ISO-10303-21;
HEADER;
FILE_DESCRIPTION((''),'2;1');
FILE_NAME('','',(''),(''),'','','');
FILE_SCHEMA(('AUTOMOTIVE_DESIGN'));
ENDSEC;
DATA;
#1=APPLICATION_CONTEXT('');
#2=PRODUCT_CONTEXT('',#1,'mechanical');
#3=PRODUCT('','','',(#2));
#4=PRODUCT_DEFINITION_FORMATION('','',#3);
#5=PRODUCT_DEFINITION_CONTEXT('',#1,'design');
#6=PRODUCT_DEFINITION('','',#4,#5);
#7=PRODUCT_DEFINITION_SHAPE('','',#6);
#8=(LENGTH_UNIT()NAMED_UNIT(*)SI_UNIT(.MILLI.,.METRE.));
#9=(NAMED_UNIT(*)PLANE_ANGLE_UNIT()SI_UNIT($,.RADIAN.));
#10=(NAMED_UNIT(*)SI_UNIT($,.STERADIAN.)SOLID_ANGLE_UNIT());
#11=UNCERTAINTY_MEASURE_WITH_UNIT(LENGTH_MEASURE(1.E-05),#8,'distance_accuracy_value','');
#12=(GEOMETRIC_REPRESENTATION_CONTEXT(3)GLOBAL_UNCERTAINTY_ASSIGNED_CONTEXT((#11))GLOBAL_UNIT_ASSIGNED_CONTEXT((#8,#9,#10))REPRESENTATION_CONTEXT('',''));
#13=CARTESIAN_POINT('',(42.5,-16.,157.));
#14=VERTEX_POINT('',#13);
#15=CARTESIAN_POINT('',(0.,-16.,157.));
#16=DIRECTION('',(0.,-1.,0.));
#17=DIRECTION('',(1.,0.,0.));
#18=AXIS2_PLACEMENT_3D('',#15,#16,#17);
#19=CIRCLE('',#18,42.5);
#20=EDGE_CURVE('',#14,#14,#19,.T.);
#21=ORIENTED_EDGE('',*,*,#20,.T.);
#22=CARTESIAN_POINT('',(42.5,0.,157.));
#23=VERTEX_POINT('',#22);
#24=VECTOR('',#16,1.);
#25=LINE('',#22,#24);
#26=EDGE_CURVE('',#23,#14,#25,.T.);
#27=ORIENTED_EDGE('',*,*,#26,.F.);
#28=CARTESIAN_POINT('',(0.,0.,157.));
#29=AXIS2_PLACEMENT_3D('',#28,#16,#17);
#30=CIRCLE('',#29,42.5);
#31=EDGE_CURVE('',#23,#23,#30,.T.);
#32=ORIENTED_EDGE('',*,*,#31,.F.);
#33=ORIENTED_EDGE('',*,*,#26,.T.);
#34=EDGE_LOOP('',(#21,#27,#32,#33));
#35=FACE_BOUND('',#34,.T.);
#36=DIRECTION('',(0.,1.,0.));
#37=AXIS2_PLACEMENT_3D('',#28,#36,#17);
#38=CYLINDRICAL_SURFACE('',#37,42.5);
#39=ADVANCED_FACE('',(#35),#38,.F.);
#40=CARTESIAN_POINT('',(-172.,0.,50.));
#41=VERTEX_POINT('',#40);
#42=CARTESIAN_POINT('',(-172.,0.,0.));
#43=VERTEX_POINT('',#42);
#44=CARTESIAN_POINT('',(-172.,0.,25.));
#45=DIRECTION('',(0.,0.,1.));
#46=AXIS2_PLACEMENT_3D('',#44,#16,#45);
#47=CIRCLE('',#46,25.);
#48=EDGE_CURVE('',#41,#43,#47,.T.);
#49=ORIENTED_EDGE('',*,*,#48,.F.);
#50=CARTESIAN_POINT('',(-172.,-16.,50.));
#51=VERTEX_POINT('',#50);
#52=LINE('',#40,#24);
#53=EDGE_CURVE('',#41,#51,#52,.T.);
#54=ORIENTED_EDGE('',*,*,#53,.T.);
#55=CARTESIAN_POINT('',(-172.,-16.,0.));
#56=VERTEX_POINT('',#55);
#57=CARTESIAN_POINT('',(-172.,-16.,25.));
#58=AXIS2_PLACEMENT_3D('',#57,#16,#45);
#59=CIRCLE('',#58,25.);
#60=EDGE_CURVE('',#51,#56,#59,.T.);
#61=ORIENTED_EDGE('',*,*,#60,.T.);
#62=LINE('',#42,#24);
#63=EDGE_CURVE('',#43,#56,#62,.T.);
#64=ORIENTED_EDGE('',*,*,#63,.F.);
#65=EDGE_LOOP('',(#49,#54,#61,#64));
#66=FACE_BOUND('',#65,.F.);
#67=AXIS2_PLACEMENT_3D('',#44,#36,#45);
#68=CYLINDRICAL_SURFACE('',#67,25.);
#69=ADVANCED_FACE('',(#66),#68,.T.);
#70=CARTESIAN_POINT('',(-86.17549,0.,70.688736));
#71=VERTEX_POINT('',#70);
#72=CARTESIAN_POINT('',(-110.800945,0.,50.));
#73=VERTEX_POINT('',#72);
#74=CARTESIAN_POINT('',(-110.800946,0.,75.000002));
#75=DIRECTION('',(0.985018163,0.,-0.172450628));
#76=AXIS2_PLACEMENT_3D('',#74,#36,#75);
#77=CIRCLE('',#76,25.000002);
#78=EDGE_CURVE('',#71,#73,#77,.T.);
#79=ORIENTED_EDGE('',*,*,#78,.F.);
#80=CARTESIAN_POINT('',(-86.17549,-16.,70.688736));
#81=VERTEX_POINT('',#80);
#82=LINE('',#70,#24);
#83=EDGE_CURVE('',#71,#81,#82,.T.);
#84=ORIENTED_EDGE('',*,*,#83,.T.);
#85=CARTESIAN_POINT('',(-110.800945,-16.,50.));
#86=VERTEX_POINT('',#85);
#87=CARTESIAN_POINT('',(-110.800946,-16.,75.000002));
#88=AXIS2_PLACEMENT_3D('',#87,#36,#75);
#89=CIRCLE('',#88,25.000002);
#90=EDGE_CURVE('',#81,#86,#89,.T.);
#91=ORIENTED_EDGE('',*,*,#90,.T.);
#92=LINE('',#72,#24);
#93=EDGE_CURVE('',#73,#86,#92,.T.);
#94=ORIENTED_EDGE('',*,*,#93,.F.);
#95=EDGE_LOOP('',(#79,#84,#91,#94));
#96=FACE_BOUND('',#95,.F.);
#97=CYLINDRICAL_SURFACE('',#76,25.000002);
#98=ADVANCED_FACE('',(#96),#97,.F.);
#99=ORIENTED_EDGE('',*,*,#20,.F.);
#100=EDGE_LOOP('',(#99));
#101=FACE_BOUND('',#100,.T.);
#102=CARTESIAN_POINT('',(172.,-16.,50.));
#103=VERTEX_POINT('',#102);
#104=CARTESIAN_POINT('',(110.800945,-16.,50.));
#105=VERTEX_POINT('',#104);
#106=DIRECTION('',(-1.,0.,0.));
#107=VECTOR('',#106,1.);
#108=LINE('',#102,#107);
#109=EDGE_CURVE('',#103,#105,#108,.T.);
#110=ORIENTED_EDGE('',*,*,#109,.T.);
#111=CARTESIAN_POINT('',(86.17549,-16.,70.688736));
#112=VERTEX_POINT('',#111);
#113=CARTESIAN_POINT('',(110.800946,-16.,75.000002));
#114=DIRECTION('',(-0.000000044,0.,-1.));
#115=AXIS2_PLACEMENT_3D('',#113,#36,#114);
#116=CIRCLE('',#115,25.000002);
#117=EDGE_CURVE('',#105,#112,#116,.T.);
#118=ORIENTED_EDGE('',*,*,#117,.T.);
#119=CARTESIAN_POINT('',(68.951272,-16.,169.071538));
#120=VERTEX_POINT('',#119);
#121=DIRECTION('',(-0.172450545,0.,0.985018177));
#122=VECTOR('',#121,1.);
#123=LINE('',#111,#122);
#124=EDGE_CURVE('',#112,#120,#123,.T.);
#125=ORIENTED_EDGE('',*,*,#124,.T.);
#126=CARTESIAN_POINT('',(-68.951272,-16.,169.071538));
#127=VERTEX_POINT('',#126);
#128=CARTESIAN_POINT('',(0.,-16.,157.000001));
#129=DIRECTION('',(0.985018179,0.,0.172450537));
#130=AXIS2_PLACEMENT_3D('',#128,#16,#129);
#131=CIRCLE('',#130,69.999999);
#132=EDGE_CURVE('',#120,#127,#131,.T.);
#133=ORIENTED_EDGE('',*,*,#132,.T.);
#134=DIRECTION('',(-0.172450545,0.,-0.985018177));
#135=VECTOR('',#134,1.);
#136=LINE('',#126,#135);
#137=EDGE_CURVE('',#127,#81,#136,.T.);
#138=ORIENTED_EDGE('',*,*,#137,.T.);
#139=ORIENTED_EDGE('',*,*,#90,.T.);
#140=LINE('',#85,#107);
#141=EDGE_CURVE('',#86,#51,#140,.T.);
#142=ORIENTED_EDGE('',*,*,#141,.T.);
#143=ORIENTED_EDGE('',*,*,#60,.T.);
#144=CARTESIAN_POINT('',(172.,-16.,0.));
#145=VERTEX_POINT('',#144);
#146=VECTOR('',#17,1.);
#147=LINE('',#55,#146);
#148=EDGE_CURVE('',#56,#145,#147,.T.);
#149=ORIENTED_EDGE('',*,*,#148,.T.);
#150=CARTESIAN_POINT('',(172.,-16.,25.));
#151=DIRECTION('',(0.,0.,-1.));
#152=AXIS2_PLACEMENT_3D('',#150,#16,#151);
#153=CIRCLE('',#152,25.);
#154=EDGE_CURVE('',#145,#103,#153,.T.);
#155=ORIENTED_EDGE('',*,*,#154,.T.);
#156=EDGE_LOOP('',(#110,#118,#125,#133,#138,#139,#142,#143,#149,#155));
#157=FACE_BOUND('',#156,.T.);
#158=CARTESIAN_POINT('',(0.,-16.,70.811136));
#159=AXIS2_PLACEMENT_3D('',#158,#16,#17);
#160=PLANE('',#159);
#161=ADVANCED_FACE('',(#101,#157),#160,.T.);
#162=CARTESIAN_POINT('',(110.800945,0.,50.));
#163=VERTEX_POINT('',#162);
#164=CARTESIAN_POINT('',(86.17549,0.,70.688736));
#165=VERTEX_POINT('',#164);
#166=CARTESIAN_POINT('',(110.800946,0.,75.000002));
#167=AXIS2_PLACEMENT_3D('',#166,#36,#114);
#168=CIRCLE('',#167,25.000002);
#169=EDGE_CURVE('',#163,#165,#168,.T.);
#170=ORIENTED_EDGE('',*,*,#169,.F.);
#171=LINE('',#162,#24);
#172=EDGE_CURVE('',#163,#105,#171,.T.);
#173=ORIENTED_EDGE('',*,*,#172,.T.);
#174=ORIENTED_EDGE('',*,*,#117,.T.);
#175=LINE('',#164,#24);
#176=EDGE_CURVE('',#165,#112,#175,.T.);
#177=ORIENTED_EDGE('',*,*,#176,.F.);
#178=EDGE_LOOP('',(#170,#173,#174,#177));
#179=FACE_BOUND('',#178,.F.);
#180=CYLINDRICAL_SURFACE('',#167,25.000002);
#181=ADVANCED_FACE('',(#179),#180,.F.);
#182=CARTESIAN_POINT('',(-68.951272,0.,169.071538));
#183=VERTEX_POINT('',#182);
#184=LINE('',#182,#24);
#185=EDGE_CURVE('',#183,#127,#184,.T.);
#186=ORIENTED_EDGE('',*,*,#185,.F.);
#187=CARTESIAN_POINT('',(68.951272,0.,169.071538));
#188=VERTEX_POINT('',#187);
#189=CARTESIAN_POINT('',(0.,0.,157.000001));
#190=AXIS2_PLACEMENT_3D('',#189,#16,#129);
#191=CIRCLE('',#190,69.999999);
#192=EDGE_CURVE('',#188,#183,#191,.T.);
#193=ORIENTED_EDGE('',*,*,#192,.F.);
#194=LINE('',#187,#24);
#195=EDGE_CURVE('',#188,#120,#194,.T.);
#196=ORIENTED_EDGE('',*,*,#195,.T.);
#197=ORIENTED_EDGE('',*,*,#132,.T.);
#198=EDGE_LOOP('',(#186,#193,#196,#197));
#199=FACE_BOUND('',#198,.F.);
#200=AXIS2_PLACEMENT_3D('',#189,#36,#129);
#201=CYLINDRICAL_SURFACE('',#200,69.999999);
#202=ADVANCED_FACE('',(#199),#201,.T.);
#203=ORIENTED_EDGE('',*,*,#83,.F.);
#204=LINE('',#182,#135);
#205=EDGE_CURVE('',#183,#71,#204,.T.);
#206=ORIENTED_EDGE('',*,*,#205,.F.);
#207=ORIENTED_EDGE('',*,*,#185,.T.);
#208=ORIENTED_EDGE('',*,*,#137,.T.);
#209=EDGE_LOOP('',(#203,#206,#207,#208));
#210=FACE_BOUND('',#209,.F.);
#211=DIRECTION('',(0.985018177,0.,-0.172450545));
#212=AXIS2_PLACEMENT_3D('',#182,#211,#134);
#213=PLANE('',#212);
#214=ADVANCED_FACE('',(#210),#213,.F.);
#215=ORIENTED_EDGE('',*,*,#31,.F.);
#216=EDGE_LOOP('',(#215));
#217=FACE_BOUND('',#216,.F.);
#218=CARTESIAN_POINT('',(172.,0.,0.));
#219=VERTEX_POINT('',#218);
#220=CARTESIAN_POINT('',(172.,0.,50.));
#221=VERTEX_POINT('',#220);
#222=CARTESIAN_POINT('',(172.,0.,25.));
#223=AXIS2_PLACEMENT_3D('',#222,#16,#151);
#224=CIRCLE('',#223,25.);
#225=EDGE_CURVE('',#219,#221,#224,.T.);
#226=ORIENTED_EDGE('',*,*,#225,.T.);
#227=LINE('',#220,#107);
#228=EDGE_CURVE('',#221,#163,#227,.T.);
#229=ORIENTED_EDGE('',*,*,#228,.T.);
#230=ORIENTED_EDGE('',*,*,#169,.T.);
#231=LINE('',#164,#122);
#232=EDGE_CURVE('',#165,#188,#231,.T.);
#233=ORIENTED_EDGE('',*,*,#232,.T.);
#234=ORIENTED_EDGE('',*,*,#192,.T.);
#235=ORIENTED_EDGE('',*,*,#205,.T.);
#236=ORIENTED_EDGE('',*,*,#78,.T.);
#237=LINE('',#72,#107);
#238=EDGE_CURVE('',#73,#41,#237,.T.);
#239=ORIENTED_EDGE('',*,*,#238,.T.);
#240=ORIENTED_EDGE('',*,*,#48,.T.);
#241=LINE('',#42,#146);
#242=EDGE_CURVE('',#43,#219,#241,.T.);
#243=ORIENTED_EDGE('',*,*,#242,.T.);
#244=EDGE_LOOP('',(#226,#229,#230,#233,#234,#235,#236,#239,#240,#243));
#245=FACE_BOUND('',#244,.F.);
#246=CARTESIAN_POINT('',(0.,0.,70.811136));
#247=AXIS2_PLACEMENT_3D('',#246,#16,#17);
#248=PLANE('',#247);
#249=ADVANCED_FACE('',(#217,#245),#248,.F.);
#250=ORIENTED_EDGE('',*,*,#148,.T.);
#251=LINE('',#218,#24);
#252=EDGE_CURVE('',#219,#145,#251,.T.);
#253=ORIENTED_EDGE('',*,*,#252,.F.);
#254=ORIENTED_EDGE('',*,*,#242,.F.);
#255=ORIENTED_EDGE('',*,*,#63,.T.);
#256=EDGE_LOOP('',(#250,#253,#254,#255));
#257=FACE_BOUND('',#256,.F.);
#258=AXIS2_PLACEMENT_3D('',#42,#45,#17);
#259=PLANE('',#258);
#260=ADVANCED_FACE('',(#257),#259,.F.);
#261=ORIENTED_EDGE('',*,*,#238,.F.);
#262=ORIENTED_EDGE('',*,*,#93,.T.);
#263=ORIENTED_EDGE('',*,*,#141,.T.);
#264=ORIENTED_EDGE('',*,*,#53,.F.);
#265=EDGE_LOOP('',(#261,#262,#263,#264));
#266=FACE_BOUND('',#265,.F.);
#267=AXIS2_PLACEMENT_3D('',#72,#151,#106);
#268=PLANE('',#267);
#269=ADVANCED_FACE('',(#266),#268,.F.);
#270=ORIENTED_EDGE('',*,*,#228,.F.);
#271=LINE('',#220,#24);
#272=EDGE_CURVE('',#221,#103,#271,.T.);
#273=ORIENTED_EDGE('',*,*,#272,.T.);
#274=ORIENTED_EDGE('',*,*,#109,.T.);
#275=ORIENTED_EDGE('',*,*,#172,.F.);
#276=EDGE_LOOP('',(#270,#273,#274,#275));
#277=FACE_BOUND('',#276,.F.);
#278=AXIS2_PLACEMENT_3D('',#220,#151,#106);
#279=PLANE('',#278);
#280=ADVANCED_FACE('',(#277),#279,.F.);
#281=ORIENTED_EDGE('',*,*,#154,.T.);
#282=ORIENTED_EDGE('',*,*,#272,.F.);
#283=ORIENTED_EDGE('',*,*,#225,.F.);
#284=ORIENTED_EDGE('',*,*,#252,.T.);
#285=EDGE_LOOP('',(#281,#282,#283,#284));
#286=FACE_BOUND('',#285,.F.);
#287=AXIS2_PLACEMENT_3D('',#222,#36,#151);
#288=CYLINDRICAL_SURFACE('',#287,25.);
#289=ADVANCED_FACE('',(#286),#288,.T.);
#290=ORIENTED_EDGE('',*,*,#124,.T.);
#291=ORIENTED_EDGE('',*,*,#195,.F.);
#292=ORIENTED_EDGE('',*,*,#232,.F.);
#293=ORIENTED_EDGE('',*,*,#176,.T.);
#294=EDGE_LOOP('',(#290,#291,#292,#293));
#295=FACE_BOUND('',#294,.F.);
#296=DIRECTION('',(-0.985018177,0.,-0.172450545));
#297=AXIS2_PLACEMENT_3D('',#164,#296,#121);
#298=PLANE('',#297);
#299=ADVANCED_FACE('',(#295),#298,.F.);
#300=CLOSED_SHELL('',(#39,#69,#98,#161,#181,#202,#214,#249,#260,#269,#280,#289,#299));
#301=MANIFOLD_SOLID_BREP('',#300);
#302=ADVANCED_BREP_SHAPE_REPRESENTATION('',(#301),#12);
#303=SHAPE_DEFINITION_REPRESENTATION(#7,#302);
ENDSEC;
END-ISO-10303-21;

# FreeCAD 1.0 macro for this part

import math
import FreeCAD as App
import Part
import Sketcher
from FreeCAD import Vector

doc = App.newDocument("Part")
body = doc.addObject("PartDesign::Body", "Body")

# Sketch on XZ plane
sketch1 = body.newObject("Sketcher::SketchObject", "Sketch")
sketch1.AttachmentSupport = (doc.getObject("XZ_Plane"), [""])
sketch1.MapMode = "FlatFace"
sketch1.addGeometry([
    Part.ArcOfCircle(Part.Circle(Vector(-172, 25, 0), Vector(0, 0, 1), 25), math.radians(90), math.radians(270)),  # 0
    Part.LineSegment(Vector(-172, 0, 0), Vector(172, 0, 0)),  # 1
    Part.ArcOfCircle(Part.Circle(Vector(172, 25, 0), Vector(0, 0, 1), 25), math.radians(-90), math.radians(90)),  # 2
    Part.LineSegment(Vector(172, 50, 0), Vector(111, 50, 0)),  # 3
    Part.ArcOfCircle(Part.Circle(Vector(111, 75, 0), Vector(0, 0, 1), 25), math.radians(-170), math.radians(-90)),  # 4
    Part.LineSegment(Vector(86, 71, 0), Vector(69, 169, 0)),  # 5
    Part.ArcOfCircle(Part.Circle(Vector(0, 157, 0), Vector(0, 0, 1), 70), math.radians(10), math.radians(170)),  # 6
    Part.LineSegment(Vector(-69, 169, 0), Vector(-86, 71, 0)),  # 7
    Part.ArcOfCircle(Part.Circle(Vector(-111, 75, 0), Vector(0, 0, 1), 25), math.radians(-90), math.radians(-10)),  # 8
    Part.LineSegment(Vector(-111, 50, 0), Vector(-172, 50, 0)),  # 9
    Part.Circle(Vector(0, 157, 0), Vector(0, 0, 1), 42),  # 10
], False)
sketch1.addConstraint([
    Sketcher.Constraint("Tangent", 0, 2, 1, 1),
    Sketcher.Constraint("Tangent", 1, 2, 2, 1),
    Sketcher.Constraint("Tangent", 2, 2, 3, 1),
    Sketcher.Constraint("Tangent", 3, 2, 4, 2),
    Sketcher.Constraint("Tangent", 4, 1, 5, 1),
    Sketcher.Constraint("Tangent", 5, 2, 6, 1),
    Sketcher.Constraint("Tangent", 6, 2, 7, 1),
    Sketcher.Constraint("Tangent", 7, 2, 8, 2),
    Sketcher.Constraint("Tangent", 8, 1, 9, 1),
    Sketcher.Constraint("Tangent", 9, 2, 0, 1),
    Sketcher.Constraint("Horizontal", 1),
    Sketcher.Constraint("Horizontal", 3),
    Sketcher.Constraint("Horizontal", 9),
    Sketcher.Constraint("Coincident", 10, 3, 6, 3),
    Sketcher.Constraint("Equal", 0, 2),
    Sketcher.Constraint("Equal", 4, 8),
    Sketcher.Constraint("Symmetric", 0, 2, 1, 2, -1, 1),
    Sketcher.Constraint("Symmetric", 5, 2, 6, 2, -2),
    Sketcher.Constraint("Diameter", 10, 85.0),
    Sketcher.Constraint("Radius", 0, 25.0),
    Sketcher.Constraint("Radius", 6, 69.999999),
    Sketcher.Constraint("DistanceX", 1, 1, 1, 2, 344.0),
    Sketcher.Constraint("DistanceY", -1, 1, 6, 3, 157.000001),
    Sketcher.Constraint("DistanceY", 4, 3, 6, 3, 81.999998),
    Sketcher.Constraint("DistanceY", 7, 2, 6, 2, 98.382802),
])
pad1 = body.newObject("PartDesign::Pad", "Pad")
pad1.Profile = sketch1
pad1.Length = 16

doc.recompute()
